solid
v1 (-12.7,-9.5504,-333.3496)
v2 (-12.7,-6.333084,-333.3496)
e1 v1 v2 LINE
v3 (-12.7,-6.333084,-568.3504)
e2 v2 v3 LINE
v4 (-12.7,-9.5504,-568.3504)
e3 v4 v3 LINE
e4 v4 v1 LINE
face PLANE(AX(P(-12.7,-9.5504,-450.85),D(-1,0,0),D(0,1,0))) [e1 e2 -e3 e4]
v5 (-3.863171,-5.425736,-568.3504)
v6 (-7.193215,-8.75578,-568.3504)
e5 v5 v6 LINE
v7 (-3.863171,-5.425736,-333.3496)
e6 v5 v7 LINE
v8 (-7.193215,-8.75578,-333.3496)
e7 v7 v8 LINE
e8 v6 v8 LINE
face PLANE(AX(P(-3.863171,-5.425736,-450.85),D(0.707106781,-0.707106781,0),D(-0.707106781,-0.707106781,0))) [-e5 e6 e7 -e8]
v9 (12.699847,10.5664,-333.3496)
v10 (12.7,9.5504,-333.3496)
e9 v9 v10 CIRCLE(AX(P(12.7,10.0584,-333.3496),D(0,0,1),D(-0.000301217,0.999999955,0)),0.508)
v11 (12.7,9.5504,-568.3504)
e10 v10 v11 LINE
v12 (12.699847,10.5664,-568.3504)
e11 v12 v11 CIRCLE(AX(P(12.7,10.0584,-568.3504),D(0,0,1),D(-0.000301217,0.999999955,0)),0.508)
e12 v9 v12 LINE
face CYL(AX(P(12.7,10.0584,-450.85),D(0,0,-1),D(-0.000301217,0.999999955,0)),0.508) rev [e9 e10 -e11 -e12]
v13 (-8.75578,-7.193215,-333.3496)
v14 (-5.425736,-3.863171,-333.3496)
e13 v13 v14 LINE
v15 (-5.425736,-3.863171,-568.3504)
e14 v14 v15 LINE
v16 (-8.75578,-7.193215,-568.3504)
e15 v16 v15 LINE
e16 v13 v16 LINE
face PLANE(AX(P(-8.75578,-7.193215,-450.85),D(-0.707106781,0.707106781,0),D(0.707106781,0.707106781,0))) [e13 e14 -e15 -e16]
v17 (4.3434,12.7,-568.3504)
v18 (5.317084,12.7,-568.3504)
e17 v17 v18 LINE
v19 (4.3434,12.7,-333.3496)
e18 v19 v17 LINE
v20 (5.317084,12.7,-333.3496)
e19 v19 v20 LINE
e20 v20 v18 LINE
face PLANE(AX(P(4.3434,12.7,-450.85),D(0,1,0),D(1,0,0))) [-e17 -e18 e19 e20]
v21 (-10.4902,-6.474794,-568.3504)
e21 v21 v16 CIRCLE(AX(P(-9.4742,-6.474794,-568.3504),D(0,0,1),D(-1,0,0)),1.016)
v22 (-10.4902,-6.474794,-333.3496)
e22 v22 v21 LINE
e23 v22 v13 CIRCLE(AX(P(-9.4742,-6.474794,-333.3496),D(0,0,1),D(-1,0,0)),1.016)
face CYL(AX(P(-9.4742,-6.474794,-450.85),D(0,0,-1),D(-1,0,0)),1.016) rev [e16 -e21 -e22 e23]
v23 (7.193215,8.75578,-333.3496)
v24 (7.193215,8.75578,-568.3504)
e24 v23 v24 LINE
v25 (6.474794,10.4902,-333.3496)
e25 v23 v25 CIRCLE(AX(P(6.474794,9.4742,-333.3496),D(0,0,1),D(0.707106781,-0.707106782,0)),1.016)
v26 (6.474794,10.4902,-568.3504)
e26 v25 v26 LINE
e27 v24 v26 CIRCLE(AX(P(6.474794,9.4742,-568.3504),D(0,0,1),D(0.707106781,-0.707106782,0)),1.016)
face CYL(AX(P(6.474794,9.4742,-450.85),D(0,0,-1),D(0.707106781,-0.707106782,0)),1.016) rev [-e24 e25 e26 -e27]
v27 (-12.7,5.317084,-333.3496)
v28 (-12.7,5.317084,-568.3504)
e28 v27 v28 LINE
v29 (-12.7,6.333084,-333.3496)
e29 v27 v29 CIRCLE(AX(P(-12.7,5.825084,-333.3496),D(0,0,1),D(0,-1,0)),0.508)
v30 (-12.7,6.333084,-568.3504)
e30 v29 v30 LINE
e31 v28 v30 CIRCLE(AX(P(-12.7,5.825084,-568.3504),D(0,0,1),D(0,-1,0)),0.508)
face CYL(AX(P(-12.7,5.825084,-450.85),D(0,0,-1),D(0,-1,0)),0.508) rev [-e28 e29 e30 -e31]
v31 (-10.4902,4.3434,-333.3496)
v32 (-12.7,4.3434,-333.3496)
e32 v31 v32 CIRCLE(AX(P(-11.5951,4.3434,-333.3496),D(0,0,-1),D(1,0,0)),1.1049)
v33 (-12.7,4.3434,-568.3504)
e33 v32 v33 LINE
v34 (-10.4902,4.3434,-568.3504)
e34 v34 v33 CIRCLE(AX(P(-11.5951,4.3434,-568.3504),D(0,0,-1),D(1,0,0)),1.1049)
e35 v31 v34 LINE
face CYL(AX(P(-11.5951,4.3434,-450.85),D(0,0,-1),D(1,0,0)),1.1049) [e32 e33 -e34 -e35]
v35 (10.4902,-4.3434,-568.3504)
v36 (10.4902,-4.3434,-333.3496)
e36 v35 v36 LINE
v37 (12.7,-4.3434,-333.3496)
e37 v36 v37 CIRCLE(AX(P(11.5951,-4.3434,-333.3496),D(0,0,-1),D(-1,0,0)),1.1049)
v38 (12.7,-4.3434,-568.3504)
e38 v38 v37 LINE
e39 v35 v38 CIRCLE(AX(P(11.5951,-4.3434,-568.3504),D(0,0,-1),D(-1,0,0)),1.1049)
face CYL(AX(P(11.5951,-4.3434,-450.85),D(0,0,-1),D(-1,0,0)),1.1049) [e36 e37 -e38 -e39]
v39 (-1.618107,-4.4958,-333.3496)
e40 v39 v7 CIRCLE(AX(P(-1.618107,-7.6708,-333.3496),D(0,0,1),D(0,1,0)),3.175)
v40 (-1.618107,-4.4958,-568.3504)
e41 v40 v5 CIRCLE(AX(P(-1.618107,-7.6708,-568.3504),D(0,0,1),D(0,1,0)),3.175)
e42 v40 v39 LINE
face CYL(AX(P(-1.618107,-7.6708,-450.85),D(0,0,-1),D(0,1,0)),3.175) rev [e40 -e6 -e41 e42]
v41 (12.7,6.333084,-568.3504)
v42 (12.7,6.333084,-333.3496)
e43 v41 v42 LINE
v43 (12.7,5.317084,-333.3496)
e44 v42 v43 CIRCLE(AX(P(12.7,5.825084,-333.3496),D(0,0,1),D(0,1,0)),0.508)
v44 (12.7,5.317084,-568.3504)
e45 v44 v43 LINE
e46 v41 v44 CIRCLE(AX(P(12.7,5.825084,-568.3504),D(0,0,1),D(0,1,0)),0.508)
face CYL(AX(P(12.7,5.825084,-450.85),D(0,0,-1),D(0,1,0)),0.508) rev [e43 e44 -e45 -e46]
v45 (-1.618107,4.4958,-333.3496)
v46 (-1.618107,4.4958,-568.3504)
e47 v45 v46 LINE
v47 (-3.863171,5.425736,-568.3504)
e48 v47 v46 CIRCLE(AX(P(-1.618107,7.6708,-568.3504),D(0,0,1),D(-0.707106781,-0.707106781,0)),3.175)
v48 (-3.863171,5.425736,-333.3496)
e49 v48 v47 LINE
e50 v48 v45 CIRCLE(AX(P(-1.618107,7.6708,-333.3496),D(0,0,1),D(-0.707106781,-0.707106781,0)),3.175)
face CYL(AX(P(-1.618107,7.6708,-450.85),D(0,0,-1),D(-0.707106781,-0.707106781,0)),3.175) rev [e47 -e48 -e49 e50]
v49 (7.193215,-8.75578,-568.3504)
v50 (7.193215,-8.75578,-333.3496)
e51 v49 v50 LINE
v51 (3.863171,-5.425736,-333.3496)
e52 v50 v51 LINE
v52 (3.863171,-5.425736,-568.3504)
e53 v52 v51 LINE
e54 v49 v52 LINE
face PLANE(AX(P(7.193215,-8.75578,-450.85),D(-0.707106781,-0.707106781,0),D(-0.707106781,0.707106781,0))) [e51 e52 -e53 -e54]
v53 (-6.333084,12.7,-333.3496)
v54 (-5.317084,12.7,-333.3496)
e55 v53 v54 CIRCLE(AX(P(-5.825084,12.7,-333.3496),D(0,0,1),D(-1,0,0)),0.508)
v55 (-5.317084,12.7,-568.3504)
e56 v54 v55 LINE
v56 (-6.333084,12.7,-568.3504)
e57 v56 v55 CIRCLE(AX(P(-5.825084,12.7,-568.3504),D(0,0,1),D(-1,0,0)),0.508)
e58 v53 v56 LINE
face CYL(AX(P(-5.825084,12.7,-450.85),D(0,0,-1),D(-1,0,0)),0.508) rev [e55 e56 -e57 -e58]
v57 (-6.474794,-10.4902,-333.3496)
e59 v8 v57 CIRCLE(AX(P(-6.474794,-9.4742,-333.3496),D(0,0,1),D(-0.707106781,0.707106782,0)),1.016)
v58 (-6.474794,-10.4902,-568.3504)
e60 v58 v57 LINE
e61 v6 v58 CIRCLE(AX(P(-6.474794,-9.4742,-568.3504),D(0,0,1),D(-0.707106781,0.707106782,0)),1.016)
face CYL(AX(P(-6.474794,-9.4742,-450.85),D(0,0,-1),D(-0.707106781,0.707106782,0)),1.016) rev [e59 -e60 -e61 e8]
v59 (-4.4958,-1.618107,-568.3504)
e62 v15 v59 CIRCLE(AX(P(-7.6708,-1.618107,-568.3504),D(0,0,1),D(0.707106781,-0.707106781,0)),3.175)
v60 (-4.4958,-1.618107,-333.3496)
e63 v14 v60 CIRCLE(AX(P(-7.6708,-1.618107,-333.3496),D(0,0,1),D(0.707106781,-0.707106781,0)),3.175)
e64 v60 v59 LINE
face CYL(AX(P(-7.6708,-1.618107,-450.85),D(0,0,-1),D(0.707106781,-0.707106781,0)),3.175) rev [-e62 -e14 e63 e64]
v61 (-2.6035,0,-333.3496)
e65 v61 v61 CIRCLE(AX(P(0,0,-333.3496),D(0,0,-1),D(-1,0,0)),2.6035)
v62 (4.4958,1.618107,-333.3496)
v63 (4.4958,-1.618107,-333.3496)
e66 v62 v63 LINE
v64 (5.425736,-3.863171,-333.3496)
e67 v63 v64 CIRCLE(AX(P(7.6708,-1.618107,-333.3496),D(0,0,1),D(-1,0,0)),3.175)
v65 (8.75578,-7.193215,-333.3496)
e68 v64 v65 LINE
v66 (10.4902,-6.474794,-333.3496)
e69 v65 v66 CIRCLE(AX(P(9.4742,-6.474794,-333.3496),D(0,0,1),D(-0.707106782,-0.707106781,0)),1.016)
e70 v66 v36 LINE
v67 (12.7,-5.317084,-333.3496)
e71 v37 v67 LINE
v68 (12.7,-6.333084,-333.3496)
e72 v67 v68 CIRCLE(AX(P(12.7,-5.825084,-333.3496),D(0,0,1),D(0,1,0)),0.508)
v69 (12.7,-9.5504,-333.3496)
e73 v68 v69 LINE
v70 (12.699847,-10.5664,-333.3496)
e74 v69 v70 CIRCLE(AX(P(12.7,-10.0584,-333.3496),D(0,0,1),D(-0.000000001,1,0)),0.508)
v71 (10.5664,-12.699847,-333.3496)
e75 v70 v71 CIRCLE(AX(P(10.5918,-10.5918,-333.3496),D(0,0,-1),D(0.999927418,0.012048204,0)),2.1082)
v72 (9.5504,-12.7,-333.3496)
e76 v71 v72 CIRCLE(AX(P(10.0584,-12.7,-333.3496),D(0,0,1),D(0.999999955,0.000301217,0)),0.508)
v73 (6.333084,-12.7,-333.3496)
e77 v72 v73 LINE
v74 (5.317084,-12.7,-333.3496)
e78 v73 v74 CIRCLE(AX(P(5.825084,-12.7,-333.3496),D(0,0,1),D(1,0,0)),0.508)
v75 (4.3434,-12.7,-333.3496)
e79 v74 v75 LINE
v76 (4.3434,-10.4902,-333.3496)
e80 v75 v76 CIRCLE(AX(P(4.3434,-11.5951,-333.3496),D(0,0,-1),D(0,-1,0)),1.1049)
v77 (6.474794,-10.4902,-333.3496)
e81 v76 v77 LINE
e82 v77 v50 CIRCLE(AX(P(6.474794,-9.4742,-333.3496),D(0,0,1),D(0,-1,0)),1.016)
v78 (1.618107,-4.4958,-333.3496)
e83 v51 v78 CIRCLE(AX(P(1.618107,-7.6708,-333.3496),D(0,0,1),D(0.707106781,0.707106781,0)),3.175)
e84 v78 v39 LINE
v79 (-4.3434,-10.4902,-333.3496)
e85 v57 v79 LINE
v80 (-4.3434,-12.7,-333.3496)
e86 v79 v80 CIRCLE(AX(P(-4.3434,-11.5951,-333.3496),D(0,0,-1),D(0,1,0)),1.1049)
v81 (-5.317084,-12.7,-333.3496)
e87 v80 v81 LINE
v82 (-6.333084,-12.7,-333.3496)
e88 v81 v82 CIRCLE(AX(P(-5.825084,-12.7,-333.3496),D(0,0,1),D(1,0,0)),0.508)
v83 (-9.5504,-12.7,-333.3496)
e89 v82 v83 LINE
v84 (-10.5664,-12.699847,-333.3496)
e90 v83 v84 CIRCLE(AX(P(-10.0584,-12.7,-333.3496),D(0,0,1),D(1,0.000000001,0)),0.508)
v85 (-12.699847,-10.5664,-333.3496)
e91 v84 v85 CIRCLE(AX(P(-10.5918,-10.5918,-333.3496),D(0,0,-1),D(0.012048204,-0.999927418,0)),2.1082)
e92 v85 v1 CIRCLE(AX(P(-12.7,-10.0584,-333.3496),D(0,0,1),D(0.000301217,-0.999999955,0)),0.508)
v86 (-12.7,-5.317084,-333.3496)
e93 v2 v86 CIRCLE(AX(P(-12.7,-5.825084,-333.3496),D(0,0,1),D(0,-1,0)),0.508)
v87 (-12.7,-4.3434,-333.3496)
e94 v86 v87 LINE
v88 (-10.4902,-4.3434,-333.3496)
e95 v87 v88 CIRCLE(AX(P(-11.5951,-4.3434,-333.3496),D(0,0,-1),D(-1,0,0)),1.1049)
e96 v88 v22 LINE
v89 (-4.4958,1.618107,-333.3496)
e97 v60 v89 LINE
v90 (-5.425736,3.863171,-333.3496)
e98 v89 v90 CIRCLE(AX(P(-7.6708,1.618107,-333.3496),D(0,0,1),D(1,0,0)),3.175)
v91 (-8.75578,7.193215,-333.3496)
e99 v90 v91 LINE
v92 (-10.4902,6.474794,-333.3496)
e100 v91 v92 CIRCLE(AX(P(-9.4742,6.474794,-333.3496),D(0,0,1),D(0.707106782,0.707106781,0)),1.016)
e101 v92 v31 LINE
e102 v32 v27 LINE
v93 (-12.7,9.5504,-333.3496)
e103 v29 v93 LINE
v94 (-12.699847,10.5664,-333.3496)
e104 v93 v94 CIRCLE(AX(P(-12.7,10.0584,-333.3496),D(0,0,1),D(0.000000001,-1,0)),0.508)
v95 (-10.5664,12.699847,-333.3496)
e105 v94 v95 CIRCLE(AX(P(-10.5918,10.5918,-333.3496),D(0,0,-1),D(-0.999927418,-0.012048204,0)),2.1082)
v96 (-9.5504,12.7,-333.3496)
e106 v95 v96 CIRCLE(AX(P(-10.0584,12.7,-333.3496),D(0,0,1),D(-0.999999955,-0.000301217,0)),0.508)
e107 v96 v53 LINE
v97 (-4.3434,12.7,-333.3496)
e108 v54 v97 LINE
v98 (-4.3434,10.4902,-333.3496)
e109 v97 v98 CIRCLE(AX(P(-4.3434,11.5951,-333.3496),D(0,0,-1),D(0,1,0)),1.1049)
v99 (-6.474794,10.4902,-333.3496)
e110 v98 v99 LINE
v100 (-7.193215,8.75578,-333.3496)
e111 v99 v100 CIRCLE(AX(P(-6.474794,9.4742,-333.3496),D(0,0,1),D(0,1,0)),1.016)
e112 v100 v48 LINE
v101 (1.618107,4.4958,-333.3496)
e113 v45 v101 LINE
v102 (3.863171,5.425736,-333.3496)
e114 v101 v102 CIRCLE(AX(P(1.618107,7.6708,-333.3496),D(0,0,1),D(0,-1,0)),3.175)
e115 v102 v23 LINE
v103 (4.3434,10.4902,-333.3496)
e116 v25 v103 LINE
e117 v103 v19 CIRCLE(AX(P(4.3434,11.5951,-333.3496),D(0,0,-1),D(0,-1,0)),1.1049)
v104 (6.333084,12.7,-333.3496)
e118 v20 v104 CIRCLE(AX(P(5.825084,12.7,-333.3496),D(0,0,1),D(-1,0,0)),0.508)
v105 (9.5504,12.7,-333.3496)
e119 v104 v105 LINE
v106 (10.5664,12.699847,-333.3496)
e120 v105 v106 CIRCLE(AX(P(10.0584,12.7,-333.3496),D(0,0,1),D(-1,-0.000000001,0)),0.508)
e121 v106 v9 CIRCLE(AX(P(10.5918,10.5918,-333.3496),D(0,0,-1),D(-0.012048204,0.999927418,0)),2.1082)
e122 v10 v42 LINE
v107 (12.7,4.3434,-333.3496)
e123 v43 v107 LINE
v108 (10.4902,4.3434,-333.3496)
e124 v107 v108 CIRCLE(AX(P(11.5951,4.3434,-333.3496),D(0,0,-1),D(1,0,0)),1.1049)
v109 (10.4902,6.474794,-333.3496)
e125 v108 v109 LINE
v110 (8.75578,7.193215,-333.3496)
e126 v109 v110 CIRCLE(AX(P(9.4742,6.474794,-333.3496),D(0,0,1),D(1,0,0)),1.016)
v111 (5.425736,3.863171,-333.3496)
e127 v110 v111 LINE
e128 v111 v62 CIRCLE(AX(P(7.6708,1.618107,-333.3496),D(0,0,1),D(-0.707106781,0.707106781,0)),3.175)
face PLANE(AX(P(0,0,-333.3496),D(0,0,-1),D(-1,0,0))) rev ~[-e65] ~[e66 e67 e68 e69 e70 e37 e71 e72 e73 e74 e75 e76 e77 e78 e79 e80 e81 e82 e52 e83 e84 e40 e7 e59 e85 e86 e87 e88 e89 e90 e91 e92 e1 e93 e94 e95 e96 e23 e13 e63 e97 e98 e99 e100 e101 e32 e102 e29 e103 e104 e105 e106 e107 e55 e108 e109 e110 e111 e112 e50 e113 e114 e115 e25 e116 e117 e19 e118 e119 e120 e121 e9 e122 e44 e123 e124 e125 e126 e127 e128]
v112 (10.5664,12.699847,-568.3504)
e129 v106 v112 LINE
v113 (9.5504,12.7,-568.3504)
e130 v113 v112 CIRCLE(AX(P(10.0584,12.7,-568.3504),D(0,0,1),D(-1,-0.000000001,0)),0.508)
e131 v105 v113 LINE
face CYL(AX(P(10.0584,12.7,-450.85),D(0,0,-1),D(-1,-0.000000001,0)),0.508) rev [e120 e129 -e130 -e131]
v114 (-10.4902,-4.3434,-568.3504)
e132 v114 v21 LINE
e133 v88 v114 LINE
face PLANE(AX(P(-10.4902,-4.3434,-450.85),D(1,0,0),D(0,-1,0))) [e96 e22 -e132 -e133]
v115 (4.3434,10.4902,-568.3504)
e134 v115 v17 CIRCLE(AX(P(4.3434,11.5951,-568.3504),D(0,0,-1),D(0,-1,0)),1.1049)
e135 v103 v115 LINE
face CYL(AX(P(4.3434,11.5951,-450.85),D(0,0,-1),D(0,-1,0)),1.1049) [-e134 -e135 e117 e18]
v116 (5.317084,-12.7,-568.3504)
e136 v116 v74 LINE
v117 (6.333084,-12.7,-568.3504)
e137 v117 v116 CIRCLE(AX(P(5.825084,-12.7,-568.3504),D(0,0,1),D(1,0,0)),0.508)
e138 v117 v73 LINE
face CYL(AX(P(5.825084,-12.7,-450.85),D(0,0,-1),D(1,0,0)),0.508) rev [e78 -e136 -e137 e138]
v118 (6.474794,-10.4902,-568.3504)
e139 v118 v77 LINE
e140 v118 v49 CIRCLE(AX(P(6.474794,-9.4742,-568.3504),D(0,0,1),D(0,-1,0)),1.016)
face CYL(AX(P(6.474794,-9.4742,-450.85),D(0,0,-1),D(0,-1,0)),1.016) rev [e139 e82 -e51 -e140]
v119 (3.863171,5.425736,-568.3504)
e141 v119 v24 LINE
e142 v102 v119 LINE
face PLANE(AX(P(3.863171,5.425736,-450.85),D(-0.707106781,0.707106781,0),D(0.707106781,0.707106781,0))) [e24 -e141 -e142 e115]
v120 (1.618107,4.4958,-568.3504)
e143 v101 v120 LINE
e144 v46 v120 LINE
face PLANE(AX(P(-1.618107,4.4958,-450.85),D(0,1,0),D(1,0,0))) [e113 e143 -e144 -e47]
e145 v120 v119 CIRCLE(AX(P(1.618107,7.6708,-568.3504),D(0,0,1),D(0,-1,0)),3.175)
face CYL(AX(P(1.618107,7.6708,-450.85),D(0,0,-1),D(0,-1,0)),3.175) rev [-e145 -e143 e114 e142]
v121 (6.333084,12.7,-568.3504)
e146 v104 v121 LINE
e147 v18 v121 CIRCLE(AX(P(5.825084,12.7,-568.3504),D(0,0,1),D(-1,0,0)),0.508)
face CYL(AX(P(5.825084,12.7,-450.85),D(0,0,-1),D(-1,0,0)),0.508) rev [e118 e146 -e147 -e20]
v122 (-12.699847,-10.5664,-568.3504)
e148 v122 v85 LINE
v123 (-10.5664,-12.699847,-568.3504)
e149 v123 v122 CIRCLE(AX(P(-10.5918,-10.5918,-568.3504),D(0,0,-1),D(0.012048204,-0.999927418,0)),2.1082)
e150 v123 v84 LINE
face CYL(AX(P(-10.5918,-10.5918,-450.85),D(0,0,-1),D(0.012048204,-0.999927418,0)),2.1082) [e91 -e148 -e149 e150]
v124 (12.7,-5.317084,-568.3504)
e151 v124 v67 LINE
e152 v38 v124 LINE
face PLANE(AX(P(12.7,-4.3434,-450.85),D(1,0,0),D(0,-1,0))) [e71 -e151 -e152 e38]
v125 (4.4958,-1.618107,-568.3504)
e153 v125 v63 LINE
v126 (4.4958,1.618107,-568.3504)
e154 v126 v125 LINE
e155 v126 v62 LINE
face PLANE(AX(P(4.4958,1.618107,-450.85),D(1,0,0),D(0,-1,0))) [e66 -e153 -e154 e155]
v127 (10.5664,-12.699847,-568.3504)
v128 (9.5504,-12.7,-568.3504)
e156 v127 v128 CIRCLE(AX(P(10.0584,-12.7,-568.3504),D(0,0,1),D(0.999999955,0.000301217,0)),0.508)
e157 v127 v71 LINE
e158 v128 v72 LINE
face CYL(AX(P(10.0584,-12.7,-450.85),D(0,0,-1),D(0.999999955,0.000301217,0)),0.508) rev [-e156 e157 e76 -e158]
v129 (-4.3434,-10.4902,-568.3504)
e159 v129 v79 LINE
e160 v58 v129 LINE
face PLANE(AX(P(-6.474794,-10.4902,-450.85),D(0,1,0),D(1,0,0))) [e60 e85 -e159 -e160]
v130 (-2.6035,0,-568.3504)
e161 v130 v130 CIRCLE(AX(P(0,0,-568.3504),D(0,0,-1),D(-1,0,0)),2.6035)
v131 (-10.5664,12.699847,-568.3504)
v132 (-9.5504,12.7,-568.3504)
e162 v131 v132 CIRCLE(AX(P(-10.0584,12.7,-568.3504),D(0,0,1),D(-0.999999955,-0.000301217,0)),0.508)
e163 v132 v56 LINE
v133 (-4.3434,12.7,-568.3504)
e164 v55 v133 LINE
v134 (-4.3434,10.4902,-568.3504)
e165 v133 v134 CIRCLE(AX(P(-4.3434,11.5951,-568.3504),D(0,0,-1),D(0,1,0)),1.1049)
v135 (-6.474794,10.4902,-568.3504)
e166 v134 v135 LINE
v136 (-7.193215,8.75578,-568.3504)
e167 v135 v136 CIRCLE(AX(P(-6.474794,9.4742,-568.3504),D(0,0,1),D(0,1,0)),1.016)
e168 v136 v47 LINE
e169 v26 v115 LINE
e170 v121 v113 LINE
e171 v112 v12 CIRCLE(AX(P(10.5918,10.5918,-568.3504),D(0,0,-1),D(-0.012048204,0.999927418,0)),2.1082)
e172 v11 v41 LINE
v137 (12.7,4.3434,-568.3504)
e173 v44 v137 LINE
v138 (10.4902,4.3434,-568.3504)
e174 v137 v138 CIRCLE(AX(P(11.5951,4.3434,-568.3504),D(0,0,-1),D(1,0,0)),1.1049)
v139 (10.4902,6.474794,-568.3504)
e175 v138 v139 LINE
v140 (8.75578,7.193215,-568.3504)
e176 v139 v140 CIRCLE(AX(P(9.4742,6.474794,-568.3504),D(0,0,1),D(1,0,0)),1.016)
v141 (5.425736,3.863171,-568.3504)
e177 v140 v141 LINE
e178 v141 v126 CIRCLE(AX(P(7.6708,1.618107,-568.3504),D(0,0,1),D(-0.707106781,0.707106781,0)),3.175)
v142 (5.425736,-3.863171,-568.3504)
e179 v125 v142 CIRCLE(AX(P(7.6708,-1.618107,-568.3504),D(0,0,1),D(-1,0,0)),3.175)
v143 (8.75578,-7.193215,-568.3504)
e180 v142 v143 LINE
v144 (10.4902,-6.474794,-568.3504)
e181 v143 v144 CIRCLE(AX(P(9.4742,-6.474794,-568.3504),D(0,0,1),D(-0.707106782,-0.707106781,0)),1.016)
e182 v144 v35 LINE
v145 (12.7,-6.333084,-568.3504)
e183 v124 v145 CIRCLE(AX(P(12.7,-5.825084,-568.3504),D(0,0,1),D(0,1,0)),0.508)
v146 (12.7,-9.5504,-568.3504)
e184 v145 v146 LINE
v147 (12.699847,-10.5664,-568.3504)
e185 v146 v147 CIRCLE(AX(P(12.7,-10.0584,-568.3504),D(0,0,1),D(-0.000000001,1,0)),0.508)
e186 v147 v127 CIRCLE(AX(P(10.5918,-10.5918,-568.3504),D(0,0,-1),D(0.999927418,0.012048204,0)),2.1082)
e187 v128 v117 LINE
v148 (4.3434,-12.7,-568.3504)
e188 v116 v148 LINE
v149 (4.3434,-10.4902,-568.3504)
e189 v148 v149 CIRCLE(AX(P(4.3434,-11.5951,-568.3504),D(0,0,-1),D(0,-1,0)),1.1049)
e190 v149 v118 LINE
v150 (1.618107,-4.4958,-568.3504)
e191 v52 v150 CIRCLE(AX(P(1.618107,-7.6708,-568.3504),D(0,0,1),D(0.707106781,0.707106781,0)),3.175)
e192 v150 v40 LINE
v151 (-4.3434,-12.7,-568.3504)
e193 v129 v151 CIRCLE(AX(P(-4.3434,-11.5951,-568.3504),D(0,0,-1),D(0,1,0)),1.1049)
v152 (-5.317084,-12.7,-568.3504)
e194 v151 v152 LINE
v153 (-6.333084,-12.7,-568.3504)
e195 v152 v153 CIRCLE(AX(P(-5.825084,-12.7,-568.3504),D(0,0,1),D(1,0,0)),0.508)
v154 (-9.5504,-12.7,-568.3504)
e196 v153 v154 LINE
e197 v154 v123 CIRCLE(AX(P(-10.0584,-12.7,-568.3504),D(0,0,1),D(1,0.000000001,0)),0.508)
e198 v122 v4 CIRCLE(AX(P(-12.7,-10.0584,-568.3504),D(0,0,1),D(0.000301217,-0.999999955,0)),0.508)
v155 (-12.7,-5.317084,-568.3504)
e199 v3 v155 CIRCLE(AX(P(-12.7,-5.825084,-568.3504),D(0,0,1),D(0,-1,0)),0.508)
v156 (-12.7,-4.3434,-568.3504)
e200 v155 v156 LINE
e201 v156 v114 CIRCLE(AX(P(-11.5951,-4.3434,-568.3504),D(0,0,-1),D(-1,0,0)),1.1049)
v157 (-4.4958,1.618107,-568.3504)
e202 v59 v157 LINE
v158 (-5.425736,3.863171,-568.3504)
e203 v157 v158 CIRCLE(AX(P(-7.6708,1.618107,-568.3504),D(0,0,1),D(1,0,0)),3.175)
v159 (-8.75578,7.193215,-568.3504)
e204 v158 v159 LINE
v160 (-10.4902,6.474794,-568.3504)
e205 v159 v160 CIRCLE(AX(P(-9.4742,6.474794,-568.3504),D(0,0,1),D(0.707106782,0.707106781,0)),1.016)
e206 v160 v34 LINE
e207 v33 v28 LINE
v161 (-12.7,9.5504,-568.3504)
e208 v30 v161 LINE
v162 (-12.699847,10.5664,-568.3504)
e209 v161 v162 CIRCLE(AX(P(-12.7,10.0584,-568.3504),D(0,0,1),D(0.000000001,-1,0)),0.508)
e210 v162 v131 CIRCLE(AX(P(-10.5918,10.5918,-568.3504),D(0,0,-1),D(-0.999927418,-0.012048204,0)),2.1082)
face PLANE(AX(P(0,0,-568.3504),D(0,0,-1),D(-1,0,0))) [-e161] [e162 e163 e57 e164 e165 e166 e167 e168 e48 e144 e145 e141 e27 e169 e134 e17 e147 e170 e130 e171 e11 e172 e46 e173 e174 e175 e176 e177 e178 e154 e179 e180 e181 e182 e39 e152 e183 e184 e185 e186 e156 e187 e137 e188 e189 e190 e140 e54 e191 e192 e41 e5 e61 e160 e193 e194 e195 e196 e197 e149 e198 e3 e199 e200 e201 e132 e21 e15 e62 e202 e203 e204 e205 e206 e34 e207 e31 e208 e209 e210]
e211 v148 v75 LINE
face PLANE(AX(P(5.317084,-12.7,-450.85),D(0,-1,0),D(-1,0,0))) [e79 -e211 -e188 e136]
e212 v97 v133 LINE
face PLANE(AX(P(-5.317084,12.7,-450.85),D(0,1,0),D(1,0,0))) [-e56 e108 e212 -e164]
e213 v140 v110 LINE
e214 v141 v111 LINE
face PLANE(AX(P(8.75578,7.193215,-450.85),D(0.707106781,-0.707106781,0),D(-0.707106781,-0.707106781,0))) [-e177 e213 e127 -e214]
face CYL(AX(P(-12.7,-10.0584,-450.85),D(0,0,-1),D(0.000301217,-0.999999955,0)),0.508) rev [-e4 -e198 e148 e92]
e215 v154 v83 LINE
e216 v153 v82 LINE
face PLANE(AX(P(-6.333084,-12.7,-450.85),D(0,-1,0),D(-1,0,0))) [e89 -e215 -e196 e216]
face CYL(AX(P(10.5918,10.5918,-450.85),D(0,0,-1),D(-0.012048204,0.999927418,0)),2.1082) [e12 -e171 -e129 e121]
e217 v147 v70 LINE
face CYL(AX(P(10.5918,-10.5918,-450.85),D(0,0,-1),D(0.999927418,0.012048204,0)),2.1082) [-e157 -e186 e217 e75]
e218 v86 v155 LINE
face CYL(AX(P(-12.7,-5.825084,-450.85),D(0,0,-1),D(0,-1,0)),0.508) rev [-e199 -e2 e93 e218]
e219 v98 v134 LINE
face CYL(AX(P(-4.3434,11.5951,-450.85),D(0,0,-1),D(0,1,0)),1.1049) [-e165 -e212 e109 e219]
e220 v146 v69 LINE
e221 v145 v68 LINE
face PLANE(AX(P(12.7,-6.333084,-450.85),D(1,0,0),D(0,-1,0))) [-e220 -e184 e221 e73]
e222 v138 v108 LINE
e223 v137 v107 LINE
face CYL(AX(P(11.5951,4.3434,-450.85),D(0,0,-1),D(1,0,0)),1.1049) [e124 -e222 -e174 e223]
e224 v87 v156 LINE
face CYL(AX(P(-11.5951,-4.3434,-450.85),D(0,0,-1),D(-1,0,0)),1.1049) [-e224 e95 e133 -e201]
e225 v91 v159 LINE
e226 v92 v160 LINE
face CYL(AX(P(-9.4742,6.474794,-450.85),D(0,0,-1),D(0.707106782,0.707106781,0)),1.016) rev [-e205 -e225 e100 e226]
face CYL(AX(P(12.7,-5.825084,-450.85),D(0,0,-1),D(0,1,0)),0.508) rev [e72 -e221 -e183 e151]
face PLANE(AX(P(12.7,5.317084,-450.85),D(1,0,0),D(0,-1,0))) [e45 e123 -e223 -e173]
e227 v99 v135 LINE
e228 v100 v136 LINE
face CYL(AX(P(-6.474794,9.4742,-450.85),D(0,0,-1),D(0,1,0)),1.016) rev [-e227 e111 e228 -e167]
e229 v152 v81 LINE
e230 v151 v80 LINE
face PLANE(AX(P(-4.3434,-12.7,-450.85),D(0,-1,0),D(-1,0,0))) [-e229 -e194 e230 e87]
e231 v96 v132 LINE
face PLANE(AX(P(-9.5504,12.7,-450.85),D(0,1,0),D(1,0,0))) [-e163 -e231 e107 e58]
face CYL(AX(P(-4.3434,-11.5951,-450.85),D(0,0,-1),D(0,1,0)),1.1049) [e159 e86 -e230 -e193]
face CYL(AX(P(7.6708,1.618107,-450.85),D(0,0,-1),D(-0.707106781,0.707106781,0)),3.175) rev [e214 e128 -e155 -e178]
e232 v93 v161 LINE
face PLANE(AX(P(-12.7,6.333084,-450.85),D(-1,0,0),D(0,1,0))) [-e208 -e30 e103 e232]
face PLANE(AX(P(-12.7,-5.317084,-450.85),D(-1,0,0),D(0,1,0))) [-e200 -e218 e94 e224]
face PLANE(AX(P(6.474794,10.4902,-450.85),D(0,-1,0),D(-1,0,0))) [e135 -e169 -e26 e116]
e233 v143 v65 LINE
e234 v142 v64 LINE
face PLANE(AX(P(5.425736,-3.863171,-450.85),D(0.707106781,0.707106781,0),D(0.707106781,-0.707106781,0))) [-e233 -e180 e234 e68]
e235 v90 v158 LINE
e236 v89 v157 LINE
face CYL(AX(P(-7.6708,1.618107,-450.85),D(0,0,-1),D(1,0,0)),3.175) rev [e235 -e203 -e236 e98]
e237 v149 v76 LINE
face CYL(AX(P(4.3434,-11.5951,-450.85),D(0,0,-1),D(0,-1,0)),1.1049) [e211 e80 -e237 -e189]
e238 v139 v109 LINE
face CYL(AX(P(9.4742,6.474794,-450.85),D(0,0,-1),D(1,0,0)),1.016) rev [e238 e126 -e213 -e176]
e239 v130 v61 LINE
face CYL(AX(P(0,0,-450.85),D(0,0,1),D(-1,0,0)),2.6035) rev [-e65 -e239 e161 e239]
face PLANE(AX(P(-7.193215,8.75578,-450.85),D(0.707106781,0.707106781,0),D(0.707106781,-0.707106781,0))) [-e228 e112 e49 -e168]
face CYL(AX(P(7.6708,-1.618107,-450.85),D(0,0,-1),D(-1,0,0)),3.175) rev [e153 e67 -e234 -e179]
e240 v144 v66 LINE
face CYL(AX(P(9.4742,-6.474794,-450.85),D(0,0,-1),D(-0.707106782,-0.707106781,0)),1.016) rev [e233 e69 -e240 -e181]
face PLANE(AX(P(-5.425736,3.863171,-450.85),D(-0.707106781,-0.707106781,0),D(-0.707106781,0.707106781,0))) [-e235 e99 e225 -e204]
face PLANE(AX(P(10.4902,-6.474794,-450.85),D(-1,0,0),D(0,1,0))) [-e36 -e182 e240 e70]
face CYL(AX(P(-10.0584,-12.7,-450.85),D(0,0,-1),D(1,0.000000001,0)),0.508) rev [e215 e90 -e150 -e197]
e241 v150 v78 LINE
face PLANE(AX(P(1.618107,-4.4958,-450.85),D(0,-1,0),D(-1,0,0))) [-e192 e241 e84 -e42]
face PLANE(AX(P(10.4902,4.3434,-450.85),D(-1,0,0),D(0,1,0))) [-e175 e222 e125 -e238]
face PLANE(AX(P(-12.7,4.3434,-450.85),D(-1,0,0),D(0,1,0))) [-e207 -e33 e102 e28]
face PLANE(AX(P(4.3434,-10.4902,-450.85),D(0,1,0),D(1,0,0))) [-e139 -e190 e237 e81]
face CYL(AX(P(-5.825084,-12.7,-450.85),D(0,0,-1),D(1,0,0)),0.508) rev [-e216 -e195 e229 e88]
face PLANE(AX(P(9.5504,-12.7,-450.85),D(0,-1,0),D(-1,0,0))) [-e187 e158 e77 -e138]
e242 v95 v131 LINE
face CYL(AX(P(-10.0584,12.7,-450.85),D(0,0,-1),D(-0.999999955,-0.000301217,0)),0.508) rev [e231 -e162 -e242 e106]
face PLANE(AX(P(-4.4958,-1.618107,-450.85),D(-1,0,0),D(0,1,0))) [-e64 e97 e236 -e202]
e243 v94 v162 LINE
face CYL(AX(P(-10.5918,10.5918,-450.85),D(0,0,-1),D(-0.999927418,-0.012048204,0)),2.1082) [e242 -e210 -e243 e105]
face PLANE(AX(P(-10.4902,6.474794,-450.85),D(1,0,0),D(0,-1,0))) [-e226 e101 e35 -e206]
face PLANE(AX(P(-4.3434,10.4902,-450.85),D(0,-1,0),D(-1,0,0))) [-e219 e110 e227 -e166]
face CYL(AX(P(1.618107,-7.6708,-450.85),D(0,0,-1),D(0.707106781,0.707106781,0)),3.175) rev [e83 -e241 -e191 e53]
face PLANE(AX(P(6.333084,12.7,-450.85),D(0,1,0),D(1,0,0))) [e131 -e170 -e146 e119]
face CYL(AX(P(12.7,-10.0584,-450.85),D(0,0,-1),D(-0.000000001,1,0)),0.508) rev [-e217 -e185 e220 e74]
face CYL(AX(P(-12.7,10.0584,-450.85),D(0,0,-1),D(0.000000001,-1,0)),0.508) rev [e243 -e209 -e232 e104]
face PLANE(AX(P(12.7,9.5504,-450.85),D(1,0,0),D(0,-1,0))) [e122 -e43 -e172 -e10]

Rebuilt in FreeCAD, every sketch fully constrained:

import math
import FreeCAD as App
import Part
import Sketcher
from FreeCAD import Vector
Q = App.Units.Quantity

doc = App.newDocument("Part")
body = doc.addObject("PartDesign::Body", "Body")

# Sketch on XY plane
sketch1 = body.newObject("Sketcher::SketchObject", "Sketch")
sketch1.AttachmentSupport = (doc.getObject("XY_Plane"), [""])
sketch1.MapMode = "FlatFace"
sketch1.AttachmentOffset = App.Placement(Vector(0, 0, -17.75 * 25.4), App.Rotation())
sketch1.addGeometry(Part.LineSegment(Vector(-12.7, -9.6, 0), Vector(-12.7, -6.3, 0)), False)
sketch1.addGeometry(Part.ArcOfCircle(Part.Circle(Vector(-12.7, -5.8, 0), Vector(0, 0, 1), 0.5), math.radians(-90), math.radians(90)), False)
sketch1.addGeometry(Part.LineSegment(Vector(-12.7, -5.3, 0), Vector(-12.7, -4.3, 0)), False)
sketch1.addGeometry(Part.ArcOfCircle(Part.Circle(Vector(-11.6, -4.3, 0), Vector(0, 0, 1), 1.1), math.radians(0), math.radians(180)), False)
sketch1.addGeometry(Part.LineSegment(Vector(-10.5, -4.3, 0), Vector(-10.5, -6.5, 0)), False)
sketch1.addGeometry(Part.ArcOfCircle(Part.Circle(Vector(-9.5, -6.5, 0), Vector(0, 0, 1), 1), math.radians(180), math.radians(315)), False)
sketch1.addGeometry(Part.LineSegment(Vector(-8.8, -7.2, 0), Vector(-5.4, -3.9, 0)), False)
sketch1.addGeometry(Part.ArcOfCircle(Part.Circle(Vector(-7.7, -1.6, 0), Vector(0, 0, 1), 3.2), math.radians(-45), math.radians(0)), False)
sketch1.addGeometry(Part.LineSegment(Vector(-4.5, -1.6, 0), Vector(-4.5, 1.6, 0)), False)
sketch1.addGeometry(Part.ArcOfCircle(Part.Circle(Vector(-7.7, 1.6, 0), Vector(0, 0, 1), 3.2), math.radians(0), math.radians(45)), False)
sketch1.addGeometry(Part.LineSegment(Vector(-5.4, 3.9, 0), Vector(-8.8, 7.2, 0)), False)
sketch1.addGeometry(Part.ArcOfCircle(Part.Circle(Vector(-9.5, 6.5, 0), Vector(0, 0, 1), 1), math.radians(45), math.radians(180)), False)
sketch1.addGeometry(Part.LineSegment(Vector(-10.5, 6.5, 0), Vector(-10.5, 4.3, 0)), False)
sketch1.addGeometry(Part.ArcOfCircle(Part.Circle(Vector(-11.6, 4.3, 0), Vector(0, 0, 1), 1.1), math.radians(180), math.radians(360)), False)
sketch1.addGeometry(Part.LineSegment(Vector(-12.7, 4.3, 0), Vector(-12.7, 5.3, 0)), False)
sketch1.addGeometry(Part.ArcOfCircle(Part.Circle(Vector(-12.7, 5.8, 0), Vector(0, 0, 1), 0.5), math.radians(-90), math.radians(90)), False)
sketch1.addGeometry(Part.LineSegment(Vector(-12.7, 6.3, 0), Vector(-12.7, 9.6, 0)), False)
sketch1.addGeometry(Part.ArcOfCircle(Part.Circle(Vector(-12.7, 10.1, 0), Vector(0, 0, 1), 0.5), math.radians(-90), math.radians(90)), False)
sketch1.addGeometry(Part.ArcOfCircle(Part.Circle(Vector(-10.6, 10.6, 0), Vector(0, 0, 1), 2.1), math.radians(89), math.radians(181)), False)
sketch1.addGeometry(Part.ArcOfCircle(Part.Circle(Vector(-10.1, 12.7, 0), Vector(0, 0, 1), 0.5), math.radians(-180), math.radians(0)), False)
sketch1.addGeometry(Part.LineSegment(Vector(-9.6, 12.7, 0), Vector(-6.3, 12.7, 0)), False)
sketch1.addGeometry(Part.ArcOfCircle(Part.Circle(Vector(-5.8, 12.7, 0), Vector(0, 0, 1), 0.5), math.radians(180), math.radians(360)), False)
sketch1.addGeometry(Part.LineSegment(Vector(-5.3, 12.7, 0), Vector(-4.3, 12.7, 0)), False)
sketch1.addGeometry(Part.ArcOfCircle(Part.Circle(Vector(-4.3, 11.6, 0), Vector(0, 0, 1), 1.1), math.radians(-90), math.radians(90)), False)
sketch1.addGeometry(Part.LineSegment(Vector(-4.3, 10.5, 0), Vector(-6.5, 10.5, 0)), False)
sketch1.addGeometry(Part.ArcOfCircle(Part.Circle(Vector(-6.5, 9.5, 0), Vector(0, 0, 1), 1), math.radians(90), math.radians(225)), False)
sketch1.addGeometry(Part.LineSegment(Vector(-7.2, 8.8, 0), Vector(-3.9, 5.4, 0)), False)
sketch1.addGeometry(Part.ArcOfCircle(Part.Circle(Vector(-1.6, 7.7, 0), Vector(0, 0, 1), 3.2), math.radians(-135), math.radians(-90)), False)
sketch1.addGeometry(Part.LineSegment(Vector(-1.6, 4.5, 0), Vector(1.6, 4.5, 0)), False)
sketch1.addGeometry(Part.ArcOfCircle(Part.Circle(Vector(1.6, 7.7, 0), Vector(0, 0, 1), 3.2), math.radians(-90), math.radians(-45)), False)
sketch1.addGeometry(Part.LineSegment(Vector(3.9, 5.4, 0), Vector(7.2, 8.8, 0)), False)
sketch1.addGeometry(Part.ArcOfCircle(Part.Circle(Vector(6.5, 9.5, 0), Vector(0, 0, 1), 1), math.radians(-45), math.radians(90)), False)
sketch1.addGeometry(Part.LineSegment(Vector(6.5, 10.5, 0), Vector(4.3, 10.5, 0)), False)
sketch1.addGeometry(Part.ArcOfCircle(Part.Circle(Vector(4.3, 11.6, 0), Vector(0, 0, 1), 1.1), math.radians(90), math.radians(270)), False)
sketch1.addGeometry(Part.LineSegment(Vector(4.3, 12.7, 0), Vector(5.3, 12.7, 0)), False)
sketch1.addGeometry(Part.ArcOfCircle(Part.Circle(Vector(5.8, 12.7, 0), Vector(0, 0, 1), 0.5), math.radians(180), math.radians(360)), False)
sketch1.addGeometry(Part.LineSegment(Vector(6.3, 12.7, 0), Vector(9.6, 12.7, 0)), False)
sketch1.addGeometry(Part.ArcOfCircle(Part.Circle(Vector(10.1, 12.7, 0), Vector(0, 0, 1), 0.5), math.radians(180), math.radians(360)), False)
sketch1.addGeometry(Part.ArcOfCircle(Part.Circle(Vector(10.6, 10.6, 0), Vector(0, 0, 1), 2.1), math.radians(-1), math.radians(91)), False)
sketch1.addGeometry(Part.ArcOfCircle(Part.Circle(Vector(12.7, 10.1, 0), Vector(0, 0, 1), 0.5), math.radians(90), math.radians(270)), False)
sketch1.addGeometry(Part.LineSegment(Vector(12.7, 9.6, 0), Vector(12.7, 6.3, 0)), False)
sketch1.addGeometry(Part.ArcOfCircle(Part.Circle(Vector(12.7, 5.8, 0), Vector(0, 0, 1), 0.5), math.radians(90), math.radians(270)), False)
sketch1.addGeometry(Part.LineSegment(Vector(12.7, 5.3, 0), Vector(12.7, 4.3, 0)), False)
sketch1.addGeometry(Part.ArcOfCircle(Part.Circle(Vector(11.6, 4.3, 0), Vector(0, 0, 1), 1.1), math.radians(180), math.radians(360)), False)
sketch1.addGeometry(Part.LineSegment(Vector(10.5, 4.3, 0), Vector(10.5, 6.5, 0)), False)
sketch1.addGeometry(Part.ArcOfCircle(Part.Circle(Vector(9.5, 6.5, 0), Vector(0, 0, 1), 1), math.radians(0), math.radians(135)), False)
sketch1.addGeometry(Part.LineSegment(Vector(8.8, 7.2, 0), Vector(5.4, 3.9, 0)), False)
sketch1.addGeometry(Part.ArcOfCircle(Part.Circle(Vector(7.7, 1.6, 0), Vector(0, 0, 1), 3.2), math.radians(135), math.radians(180)), False)
sketch1.addGeometry(Part.LineSegment(Vector(4.5, 1.6, 0), Vector(4.5, -1.6, 0)), False)
sketch1.addGeometry(Part.ArcOfCircle(Part.Circle(Vector(7.7, -1.6, 0), Vector(0, 0, 1), 3.2), math.radians(180), math.radians(225)), False)
sketch1.addGeometry(Part.LineSegment(Vector(5.4, -3.9, 0), Vector(8.8, -7.2, 0)), False)
sketch1.addGeometry(Part.ArcOfCircle(Part.Circle(Vector(9.5, -6.5, 0), Vector(0, 0, 1), 1), math.radians(-135), math.radians(0)), False)
sketch1.addGeometry(Part.LineSegment(Vector(10.5, -6.5, 0), Vector(10.5, -4.3, 0)), False)
sketch1.addGeometry(Part.ArcOfCircle(Part.Circle(Vector(11.6, -4.3, 0), Vector(0, 0, 1), 1.1), math.radians(0), math.radians(180)), False)
sketch1.addGeometry(Part.LineSegment(Vector(12.7, -4.3, 0), Vector(12.7, -5.3, 0)), False)
sketch1.addGeometry(Part.ArcOfCircle(Part.Circle(Vector(12.7, -5.8, 0), Vector(0, 0, 1), 0.5), math.radians(90), math.radians(270)), False)
sketch1.addGeometry(Part.LineSegment(Vector(12.7, -6.3, 0), Vector(12.7, -9.6, 0)), False)
sketch1.addGeometry(Part.ArcOfCircle(Part.Circle(Vector(12.7, -10.1, 0), Vector(0, 0, 1), 0.5), math.radians(90), math.radians(270)), False)
sketch1.addGeometry(Part.ArcOfCircle(Part.Circle(Vector(10.6, -10.6, 0), Vector(0, 0, 1), 2.1), math.radians(-91), math.radians(1)), False)
sketch1.addGeometry(Part.ArcOfCircle(Part.Circle(Vector(10.1, -12.7, 0), Vector(0, 0, 1), 0.5), math.radians(0), math.radians(180)), False)
sketch1.addGeometry(Part.LineSegment(Vector(9.6, -12.7, 0), Vector(6.3, -12.7, 0)), False)
sketch1.addGeometry(Part.ArcOfCircle(Part.Circle(Vector(5.8, -12.7, 0), Vector(0, 0, 1), 0.5), math.radians(0), math.radians(180)), False)
sketch1.addGeometry(Part.LineSegment(Vector(5.3, -12.7, 0), Vector(4.3, -12.7, 0)), False)
sketch1.addGeometry(Part.ArcOfCircle(Part.Circle(Vector(4.3, -11.6, 0), Vector(0, 0, 1), 1.1), math.radians(90), math.radians(270)), False)
sketch1.addGeometry(Part.LineSegment(Vector(4.3, -10.5, 0), Vector(6.5, -10.5, 0)), False)
sketch1.addGeometry(Part.ArcOfCircle(Part.Circle(Vector(6.5, -9.5, 0), Vector(0, 0, 1), 1), math.radians(-90), math.radians(45)), False)
sketch1.addGeometry(Part.LineSegment(Vector(7.2, -8.8, 0), Vector(3.9, -5.4, 0)), False)
sketch1.addGeometry(Part.ArcOfCircle(Part.Circle(Vector(1.6, -7.7, 0), Vector(0, 0, 1), 3.2), math.radians(45), math.radians(90)), False)
sketch1.addGeometry(Part.LineSegment(Vector(1.6, -4.5, 0), Vector(-1.6, -4.5, 0)), False)
sketch1.addGeometry(Part.ArcOfCircle(Part.Circle(Vector(-1.6, -7.7, 0), Vector(0, 0, 1), 3.2), math.radians(90), math.radians(135)), False)
sketch1.addGeometry(Part.LineSegment(Vector(-3.9, -5.4, 0), Vector(-7.2, -8.8, 0)), False)
sketch1.addGeometry(Part.ArcOfCircle(Part.Circle(Vector(-6.5, -9.5, 0), Vector(0, 0, 1), 1), math.radians(135), math.radians(270)), False)
sketch1.addGeometry(Part.LineSegment(Vector(-6.5, -10.5, 0), Vector(-4.3, -10.5, 0)), False)
sketch1.addGeometry(Part.ArcOfCircle(Part.Circle(Vector(-4.3, -11.6, 0), Vector(0, 0, 1), 1.1), math.radians(-90), math.radians(90)), False)
sketch1.addGeometry(Part.LineSegment(Vector(-4.3, -12.7, 0), Vector(-5.3, -12.7, 0)), False)
sketch1.addGeometry(Part.ArcOfCircle(Part.Circle(Vector(-5.8, -12.7, 0), Vector(0, 0, 1), 0.5), math.radians(0), math.radians(180)), False)
sketch1.addGeometry(Part.LineSegment(Vector(-6.3, -12.7, 0), Vector(-9.6, -12.7, 0)), False)
sketch1.addGeometry(Part.ArcOfCircle(Part.Circle(Vector(-10.1, -12.7, 0), Vector(0, 0, 1), 0.5), math.radians(0), math.radians(180)), False)
sketch1.addGeometry(Part.ArcOfCircle(Part.Circle(Vector(-10.6, -10.6, 0), Vector(0, 0, 1), 2.1), math.radians(179), math.radians(271)), False)
sketch1.addGeometry(Part.ArcOfCircle(Part.Circle(Vector(-12.7, -10.1, 0), Vector(0, 0, 1), 0.5), math.radians(-90), math.radians(90)), False)
sketch1.addGeometry(Part.Circle(Vector(0, 0, 0), Vector(0, 0, 1), 2.6), False)
sketch1.addConstraint(Sketcher.Constraint("Coincident", 0, 2, 1, 1))
sketch1.addConstraint(Sketcher.Constraint("Coincident", 1, 2, 2, 1))
sketch1.addConstraint(Sketcher.Constraint("Tangent", 2, 2, 3, 2))
sketch1.addConstraint(Sketcher.Constraint("Tangent", 3, 1, 4, 1))
sketch1.addConstraint(Sketcher.Constraint("Tangent", 4, 2, 5, 1))
sketch1.addConstraint(Sketcher.Constraint("Tangent", 5, 2, 6, 1))
sketch1.addConstraint(Sketcher.Constraint("Tangent", 6, 2, 7, 1))
sketch1.addConstraint(Sketcher.Constraint("Tangent", 7, 2, 8, 1))
sketch1.addConstraint(Sketcher.Constraint("Tangent", 8, 2, 9, 1))
sketch1.addConstraint(Sketcher.Constraint("Tangent", 9, 2, 10, 1))
sketch1.addConstraint(Sketcher.Constraint("Tangent", 10, 2, 11, 1))
sketch1.addConstraint(Sketcher.Constraint("Tangent", 11, 2, 12, 1))
sketch1.addConstraint(Sketcher.Constraint("Tangent", 12, 2, 13, 2))
sketch1.addConstraint(Sketcher.Constraint("Tangent", 13, 1, 14, 1))
sketch1.addConstraint(Sketcher.Constraint("Coincident", 14, 2, 15, 1))
sketch1.addConstraint(Sketcher.Constraint("Coincident", 15, 2, 16, 1))
sketch1.addConstraint(Sketcher.Constraint("Coincident", 16, 2, 17, 1))
sketch1.addConstraint(Sketcher.Constraint("Coincident", 17, 2, 18, 2))
sketch1.addConstraint(Sketcher.Constraint("Coincident", 18, 1, 19, 1))
sketch1.addConstraint(Sketcher.Constraint("Coincident", 19, 2, 20, 1))
sketch1.addConstraint(Sketcher.Constraint("Coincident", 20, 2, 21, 1))
sketch1.addConstraint(Sketcher.Constraint("Coincident", 21, 2, 22, 1))
sketch1.addConstraint(Sketcher.Constraint("Tangent", 22, 2, 23, 2))
sketch1.addConstraint(Sketcher.Constraint("Tangent", 23, 1, 24, 1))
sketch1.addConstraint(Sketcher.Constraint("Tangent", 24, 2, 25, 1))
sketch1.addConstraint(Sketcher.Constraint("Tangent", 25, 2, 26, 1))
sketch1.addConstraint(Sketcher.Constraint("Tangent", 26, 2, 27, 1))
sketch1.addConstraint(Sketcher.Constraint("Tangent", 27, 2, 28, 1))
sketch1.addConstraint(Sketcher.Constraint("Tangent", 28, 2, 29, 1))
sketch1.addConstraint(Sketcher.Constraint("Tangent", 29, 2, 30, 1))
sketch1.addConstraint(Sketcher.Constraint("Tangent", 30, 2, 31, 1))
sketch1.addConstraint(Sketcher.Constraint("Tangent", 31, 2, 32, 1))
sketch1.addConstraint(Sketcher.Constraint("Tangent", 32, 2, 33, 2))
sketch1.addConstraint(Sketcher.Constraint("Tangent", 33, 1, 34, 1))
sketch1.addConstraint(Sketcher.Constraint("Coincident", 34, 2, 35, 1))
sketch1.addConstraint(Sketcher.Constraint("Coincident", 35, 2, 36, 1))
sketch1.addConstraint(Sketcher.Constraint("Coincident", 36, 2, 37, 1))
sketch1.addConstraint(Sketcher.Constraint("Coincident", 37, 2, 38, 2))
sketch1.addConstraint(Sketcher.Constraint("Coincident", 38, 1, 39, 1))
sketch1.addConstraint(Sketcher.Constraint("Coincident", 39, 2, 40, 1))
sketch1.addConstraint(Sketcher.Constraint("Coincident", 40, 2, 41, 1))
sketch1.addConstraint(Sketcher.Constraint("Coincident", 41, 2, 42, 1))
sketch1.addConstraint(Sketcher.Constraint("Tangent", 42, 2, 43, 2))
sketch1.addConstraint(Sketcher.Constraint("Tangent", 43, 1, 44, 1))
sketch1.addConstraint(Sketcher.Constraint("Tangent", 44, 2, 45, 1))
sketch1.addConstraint(Sketcher.Constraint("Tangent", 45, 2, 46, 1))
sketch1.addConstraint(Sketcher.Constraint("Tangent", 46, 2, 47, 1))
sketch1.addConstraint(Sketcher.Constraint("Tangent", 47, 2, 48, 1))
sketch1.addConstraint(Sketcher.Constraint("Tangent", 48, 2, 49, 1))
sketch1.addConstraint(Sketcher.Constraint("Tangent", 49, 2, 50, 1))
sketch1.addConstraint(Sketcher.Constraint("Tangent", 50, 2, 51, 1))
sketch1.addConstraint(Sketcher.Constraint("Tangent", 51, 2, 52, 1))
sketch1.addConstraint(Sketcher.Constraint("Tangent", 52, 2, 53, 2))
sketch1.addConstraint(Sketcher.Constraint("Tangent", 53, 1, 54, 1))
sketch1.addConstraint(Sketcher.Constraint("Coincident", 54, 2, 55, 1))
sketch1.addConstraint(Sketcher.Constraint("Coincident", 55, 2, 56, 1))
sketch1.addConstraint(Sketcher.Constraint("Coincident", 56, 2, 57, 1))
sketch1.addConstraint(Sketcher.Constraint("Coincident", 57, 2, 58, 2))
sketch1.addConstraint(Sketcher.Constraint("Coincident", 58, 1, 59, 1))
sketch1.addConstraint(Sketcher.Constraint("Coincident", 59, 2, 60, 1))
sketch1.addConstraint(Sketcher.Constraint("Coincident", 60, 2, 61, 1))
sketch1.addConstraint(Sketcher.Constraint("Coincident", 61, 2, 62, 1))
sketch1.addConstraint(Sketcher.Constraint("Tangent", 62, 2, 63, 2))
sketch1.addConstraint(Sketcher.Constraint("Tangent", 63, 1, 64, 1))
sketch1.addConstraint(Sketcher.Constraint("Tangent", 64, 2, 65, 1))
sketch1.addConstraint(Sketcher.Constraint("Tangent", 65, 2, 66, 1))
sketch1.addConstraint(Sketcher.Constraint("Tangent", 66, 2, 67, 1))
sketch1.addConstraint(Sketcher.Constraint("Tangent", 67, 2, 68, 1))
sketch1.addConstraint(Sketcher.Constraint("Tangent", 68, 2, 69, 1))
sketch1.addConstraint(Sketcher.Constraint("Tangent", 69, 2, 70, 1))
sketch1.addConstraint(Sketcher.Constraint("Tangent", 70, 2, 71, 1))
sketch1.addConstraint(Sketcher.Constraint("Tangent", 71, 2, 72, 1))
sketch1.addConstraint(Sketcher.Constraint("Tangent", 72, 2, 73, 2))
sketch1.addConstraint(Sketcher.Constraint("Tangent", 73, 1, 74, 1))
sketch1.addConstraint(Sketcher.Constraint("Coincident", 74, 2, 75, 1))
sketch1.addConstraint(Sketcher.Constraint("Coincident", 75, 2, 76, 1))
sketch1.addConstraint(Sketcher.Constraint("Coincident", 76, 2, 77, 1))
sketch1.addConstraint(Sketcher.Constraint("Coincident", 77, 2, 78, 2))
sketch1.addConstraint(Sketcher.Constraint("Coincident", 78, 1, 79, 1))
sketch1.addConstraint(Sketcher.Constraint("Coincident", 79, 2, 0, 1))
sketch1.addConstraint(Sketcher.Constraint("Vertical", 0))
sketch1.addConstraint(Sketcher.Constraint("Vertical", 2))
sketch1.addConstraint(Sketcher.Constraint("Vertical", 4))
sketch1.addConstraint(Sketcher.Constraint("Vertical", 8))
sketch1.addConstraint(Sketcher.Constraint("Vertical", 12))
sketch1.addConstraint(Sketcher.Constraint("Vertical", 14))
sketch1.addConstraint(Sketcher.Constraint("Vertical", 16))
sketch1.addConstraint(Sketcher.Constraint("Horizontal", 20))
sketch1.addConstraint(Sketcher.Constraint("Horizontal", 22))
sketch1.addConstraint(Sketcher.Constraint("Horizontal", 24))
sketch1.addConstraint(Sketcher.Constraint("Horizontal", 28))
sketch1.addConstraint(Sketcher.Constraint("Horizontal", 32))
sketch1.addConstraint(Sketcher.Constraint("Horizontal", 34))
sketch1.addConstraint(Sketcher.Constraint("Horizontal", 36))
sketch1.addConstraint(Sketcher.Constraint("Vertical", 40))
sketch1.addConstraint(Sketcher.Constraint("Vertical", 42))
sketch1.addConstraint(Sketcher.Constraint("Vertical", 44))
sketch1.addConstraint(Sketcher.Constraint("Vertical", 48))
sketch1.addConstraint(Sketcher.Constraint("Vertical", 52))
sketch1.addConstraint(Sketcher.Constraint("Vertical", 54))
sketch1.addConstraint(Sketcher.Constraint("Vertical", 56))
sketch1.addConstraint(Sketcher.Constraint("Horizontal", 60))
sketch1.addConstraint(Sketcher.Constraint("Horizontal", 62))
sketch1.addConstraint(Sketcher.Constraint("Horizontal", 64))
sketch1.addConstraint(Sketcher.Constraint("Horizontal", 68))
sketch1.addConstraint(Sketcher.Constraint("Horizontal", 72))
sketch1.addConstraint(Sketcher.Constraint("Horizontal", 74))
sketch1.addConstraint(Sketcher.Constraint("Horizontal", 76))
sketch1.addConstraint(Sketcher.Constraint("Coincident", 80, 3, -1, 1))
sketch1.addConstraint(Sketcher.Constraint("Equal", 7, 9))
sketch1.addConstraint(Sketcher.Constraint("Equal", 5, 11))
sketch1.addConstraint(Sketcher.Constraint("Equal", 3, 13))
sketch1.addConstraint(Sketcher.Constraint("Equal", 1, 15))
sketch1.addConstraint(Sketcher.Constraint("Equal", 15, 17))
sketch1.addConstraint(Sketcher.Constraint("Equal", 17, 19))
sketch1.addConstraint(Sketcher.Constraint("Equal", 19, 21))
sketch1.addConstraint(Sketcher.Constraint("Equal", 13, 23))
sketch1.addConstraint(Sketcher.Constraint("Equal", 11, 25))
sketch1.addConstraint(Sketcher.Constraint("Equal", 9, 27))
sketch1.addConstraint(Sketcher.Constraint("Equal", 27, 29))
sketch1.addConstraint(Sketcher.Constraint("Equal", 25, 31))
sketch1.addConstraint(Sketcher.Constraint("Equal", 23, 33))
sketch1.addConstraint(Sketcher.Constraint("Equal", 21, 35))
sketch1.addConstraint(Sketcher.Constraint("Equal", 35, 37))
sketch1.addConstraint(Sketcher.Constraint("Equal", 18, 38))
sketch1.addConstraint(Sketcher.Constraint("Equal", 37, 39))
sketch1.addConstraint(Sketcher.Constraint("Equal", 39, 41))
sketch1.addConstraint(Sketcher.Constraint("Equal", 33, 43))
sketch1.addConstraint(Sketcher.Constraint("Equal", 31, 45))
sketch1.addConstraint(Sketcher.Constraint("Equal", 29, 47))
sketch1.addConstraint(Sketcher.Constraint("Equal", 47, 49))
sketch1.addConstraint(Sketcher.Constraint("Equal", 45, 51))
sketch1.addConstraint(Sketcher.Constraint("Equal", 43, 53))
sketch1.addConstraint(Sketcher.Constraint("Equal", 41, 55))
sketch1.addConstraint(Sketcher.Constraint("Equal", 55, 57))
sketch1.addConstraint(Sketcher.Constraint("Equal", 38, 58))
sketch1.addConstraint(Sketcher.Constraint("Equal", 57, 59))
sketch1.addConstraint(Sketcher.Constraint("Equal", 59, 61))
sketch1.addConstraint(Sketcher.Constraint("Equal", 53, 63))
sketch1.addConstraint(Sketcher.Constraint("Equal", 51, 65))
sketch1.addConstraint(Sketcher.Constraint("Equal", 49, 67))
sketch1.addConstraint(Sketcher.Constraint("Equal", 67, 69))
sketch1.addConstraint(Sketcher.Constraint("Equal", 65, 71))
sketch1.addConstraint(Sketcher.Constraint("Equal", 63, 73))
sketch1.addConstraint(Sketcher.Constraint("Equal", 61, 75))
sketch1.addConstraint(Sketcher.Constraint("Equal", 75, 77))
sketch1.addConstraint(Sketcher.Constraint("Equal", 58, 78))
sketch1.addConstraint(Sketcher.Constraint("Equal", 77, 79))
sketch1.addConstraint(Sketcher.Constraint("Symmetric", 1, 3, 41, 3, -1, 1))
sketch1.addConstraint(Sketcher.Constraint("Symmetric", 3, 3, 43, 3, -1, 1))
sketch1.addConstraint(Sketcher.Constraint("Symmetric", 7, 3, 47, 3, -1, 1))
sketch1.addConstraint(Sketcher.Constraint("Symmetric", 11, 3, 51, 3, -1, 1))
sketch1.addConstraint(Sketcher.Constraint("Symmetric", 15, 3, 55, 3, -1, 1))
sketch1.addConstraint(Sketcher.Constraint("Symmetric", 17, 3, 57, 3, -1, 1))
sketch1.addConstraint(Sketcher.Constraint("Symmetric", 18, 3, 58, 3, -1, 1))
sketch1.addConstraint(Sketcher.Constraint("Symmetric", 19, 3, 59, 3, -1, 1))
sketch1.addConstraint(Sketcher.Constraint("Symmetric", 21, 3, 61, 3, -1, 1))
sketch1.addConstraint(Sketcher.Constraint("Symmetric", 23, 3, 63, 3, -1, 1))
sketch1.addConstraint(Sketcher.Constraint("Symmetric", 27, 3, 67, 3, -1, 1))
sketch1.addConstraint(Sketcher.Constraint("Symmetric", 31, 3, 71, 3, -1, 1))
sketch1.addConstraint(Sketcher.Constraint("Symmetric", 35, 3, 75, 3, -1, 1))
sketch1.addConstraint(Sketcher.Constraint("Symmetric", 37, 3, 77, 3, -1, 1))
sketch1.addConstraint(Sketcher.Constraint("Symmetric", 38, 3, 78, 3, -1, 1))
sketch1.addConstraint(Sketcher.Constraint("Symmetric", 39, 3, 79, 3, -1, 1))
sketch1.addConstraint(Sketcher.Constraint("Symmetric", 25, 3, 31, 3, -2))
sketch1.addConstraint(Sketcher.Constraint("Symmetric", 21, 3, 35, 3, -2))
sketch1.addConstraint(Sketcher.Constraint("Symmetric", 19, 3, 37, 3, -2))
sketch1.addConstraint(Sketcher.Constraint("Symmetric", 18, 3, 38, 3, -2))
sketch1.addConstraint(Sketcher.Constraint("Symmetric", 17, 3, 39, 3, -2))
sketch1.addConstraint(Sketcher.Constraint("Symmetric", 15, 3, 41, 3, -2))
sketch1.addConstraint(Sketcher.Constraint("Symmetric", 13, 3, 43, 3, -2))
sketch1.addConstraint(Sketcher.Constraint("Symmetric", 10, 2, 45, 2, -2))
sketch1.addConstraint(Sketcher.Constraint("Symmetric", 6, 2, 49, 2, -2))
sketch1.addConstraint(Sketcher.Constraint("Symmetric", 66, 2, 69, 2, -2))
sketch1.addConstraint(Sketcher.Constraint("Perpendicular", 6, 10))
sketch1.addConstraint(Sketcher.Constraint("Parallel", 10, 26))
sketch1.addConstraint(Sketcher.Constraint("Perpendicular", 26, 30))
sketch1.addConstraint(Sketcher.Constraint("Horizontal", 19, 3, 21, 3))
sketch1.addConstraint(Sketcher.Constraint("Horizontal", 3, 3, 53, 3))
sketch1.addConstraint(Sketcher.Constraint("Horizontal", 37, 3, 19, 2))
sketch1.addConstraint(Sketcher.Constraint("Horizontal", 20, 2, 21, 2))
sketch1.addConstraint(Sketcher.Constraint("Horizontal", 34, 2, 35, 2))
sketch1.addConstraint(Sketcher.Constraint("Horizontal", 77, 3, 59, 2))
sketch1.addConstraint(Sketcher.Constraint("Horizontal", 74, 2, 75, 2))
sketch1.addConstraint(Sketcher.Constraint("Vertical", 15, 3, 17, 3))
sketch1.addConstraint(Sketcher.Constraint("Vertical", 33, 3, 63, 3))
sketch1.addConstraint(Sketcher.Constraint("Vertical", 23, 3, 73, 3))
sketch1.addConstraint(Sketcher.Constraint("Vertical", 79, 3, 0, 2))
sketch1.addConstraint(Sketcher.Constraint("Vertical", 0, 2, 1, 2))
sketch1.addConstraint(Sketcher.Constraint("Vertical", 14, 2, 15, 2))
sketch1.addConstraint(Sketcher.Constraint("Vertical", 57, 3, 39, 2))
sketch1.addConstraint(Sketcher.Constraint("Vertical", 54, 2, 55, 2))
sketch1.addConstraint(Sketcher.Constraint("Equal", 76, 0))
sketch1.addConstraint(Sketcher.Constraint("Equal", 74, 2))
sketch1.addConstraint(Sketcher.Constraint("Equal", 72, 4))
sketch1.addConstraint(Sketcher.Constraint("Equal", 68, 8))
sketch1.addConstraint(Sketcher.Constraint("Equal", 10, 26))
sketch1.addConstraint(Sketcher.Constraint("Radius", 1, Q("0.02 in")))
sketch1.addConstraint(Sketcher.Constraint("Radius", 5, Q("0.04 in")))
sketch1.addConstraint(Sketcher.Constraint("Diameter", 80, Q("0.205 in")))
sketch1.addConstraint(Sketcher.Constraint("Radius", 7, Q("0.125 in")))
sketch1.addConstraint(Sketcher.Constraint("Radius", 18, Q("0.083 in")))
sketch1.addConstraint(Sketcher.Constraint("DistanceX", 1, 3, -1, 1, Q("0.5 in")))
sketch1.addConstraint(Sketcher.Constraint("DistanceY", -1, 1, 19, 3, Q("0.5 in")))
sketch1.addConstraint(Sketcher.Constraint("Radius", 3, Q("0.0435 in")))
sketch1.addConstraint(Sketcher.Constraint("DistanceY", 3, 3, -1, 1, Q("0.171 in")))
sketch1.addConstraint(Sketcher.Constraint("DistanceX", 7, 3, -1, 1, Q("0.302 in")))
sketch1.addConstraint(Sketcher.Constraint("DistanceY", -1, 1, 17, 3, Q("0.396 in")))
sketch1.addConstraint(Sketcher.Constraint("DistanceX", 18, 3, -1, 1, Q("0.417 in")))
sketch1.addConstraint(Sketcher.Constraint("DistanceY", -1, 1, 18, 3, Q("0.417 in")))
sketch1.addConstraint(Sketcher.Constraint("DistanceX", 20, 1, 20, 2, 3.217316))
sketch1.addConstraint(Sketcher.Constraint("DistanceX", 24, 2, 24, 1, 2.131394))
pad1 = body.newObject("PartDesign::Pad", "Pad")
pad1.Profile = sketch1
pad1.Length = Q("9.252 in")
pad1.Midplane = True

doc.recompute()
